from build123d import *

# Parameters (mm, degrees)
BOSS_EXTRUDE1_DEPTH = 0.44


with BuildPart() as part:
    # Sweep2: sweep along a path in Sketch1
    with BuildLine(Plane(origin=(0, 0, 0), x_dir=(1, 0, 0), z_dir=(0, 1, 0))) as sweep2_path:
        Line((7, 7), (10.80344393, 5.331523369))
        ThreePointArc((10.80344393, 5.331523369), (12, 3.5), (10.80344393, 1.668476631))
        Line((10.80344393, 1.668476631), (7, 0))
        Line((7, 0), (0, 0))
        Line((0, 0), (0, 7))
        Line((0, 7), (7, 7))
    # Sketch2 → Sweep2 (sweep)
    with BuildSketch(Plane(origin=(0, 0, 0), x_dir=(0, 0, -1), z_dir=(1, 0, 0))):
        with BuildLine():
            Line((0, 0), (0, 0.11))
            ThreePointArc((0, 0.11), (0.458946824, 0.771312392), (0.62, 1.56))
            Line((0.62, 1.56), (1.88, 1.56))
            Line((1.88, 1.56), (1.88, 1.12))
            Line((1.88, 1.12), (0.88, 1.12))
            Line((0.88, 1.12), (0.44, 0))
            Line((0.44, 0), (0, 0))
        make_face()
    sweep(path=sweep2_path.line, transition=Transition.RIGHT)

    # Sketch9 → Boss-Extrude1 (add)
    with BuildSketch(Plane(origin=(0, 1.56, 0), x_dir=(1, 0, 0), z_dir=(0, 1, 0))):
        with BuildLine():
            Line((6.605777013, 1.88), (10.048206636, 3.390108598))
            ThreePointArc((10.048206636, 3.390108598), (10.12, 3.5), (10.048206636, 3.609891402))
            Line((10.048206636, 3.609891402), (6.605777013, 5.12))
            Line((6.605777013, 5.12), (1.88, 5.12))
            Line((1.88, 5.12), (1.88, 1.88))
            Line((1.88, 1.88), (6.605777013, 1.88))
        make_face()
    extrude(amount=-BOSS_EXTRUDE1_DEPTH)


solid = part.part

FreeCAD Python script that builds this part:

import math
import FreeCAD as App
import Part
import Sketcher
from FreeCAD import Vector
Q = App.Units.Quantity

doc = App.newDocument("Part")
params = doc.addObject("Spreadsheet::Sheet", "Params")
for row, (alias, value) in enumerate([
    ("sketch1_radius", "2 mm"),
    ("sketch1_height", "1 mm"),
    ("sketch1_width", "0.11 mm"),
    ("sketch1_width2", "0.44 mm"),
    ("sketch1_height2", "1.26 mm"),
    ("sketch2_radius", "2 mm"),
    ("sketch2_width", "7 mm"),
    ("sketch3_radius", "0.12 mm"),
    ("sketch3_height", "3.24 mm"),
    ("pad1_length", "0.44 mm"),
], start=1):
    params.set(f"A{row}", alias)
    params.set(f"B{row}", "=" + value)
    params.setAlias(f"B{row}", alias)

body = doc.addObject("PartDesign::Body", "Body")

sketch1 = body.newObject("Sketcher::SketchObject", "Sketch")
sketch1.AttachmentSupport = (doc.getObject("YZ_Plane"), [""])
sketch1.MapMode = "FlatFace"
sketch1.addGeometry([
    Part.LineSegment(Vector(0.11, 0, 0), Vector(0, 0, 0)),
    Part.LineSegment(Vector(0, 0, 0), Vector(0, -0.44, 0)),
    Part.LineSegment(Vector(0, -0.44, 0), Vector(1.12, -0.88, 0)),
    Part.LineSegment(Vector(1.12, -0.88, 0), Vector(1.12, -1.88, 0)),
    Part.LineSegment(Vector(1.12, -1.88, 0), Vector(1.56, -1.88, 0)),
    Part.LineSegment(Vector(1.56, -1.88, 0), Vector(1.56, -0.62, 0)),
    Part.ArcOfCircle(Part.Circle(Vector(1.56, 1.38, 0), Vector(0, 0, 1), 2), math.radians(-136), math.radians(-90)),
], False)
sketch1.addConstraint([
    Sketcher.Constraint("Coincident", 0, 2, 1, 1),
    Sketcher.Constraint("Coincident", 1, 2, 2, 1),
    Sketcher.Constraint("Coincident", 2, 2, 3, 1),
    Sketcher.Constraint("Coincident", 3, 2, 4, 1),
    Sketcher.Constraint("Coincident", 4, 2, 5, 1),
    Sketcher.Constraint("Coincident", 5, 2, 6, 2),
    Sketcher.Constraint("Coincident", 6, 1, 0, 1),
    Sketcher.Constraint("Horizontal", 0),
    Sketcher.Constraint("Vertical", 1),
    Sketcher.Constraint("Vertical", 3),
    Sketcher.Constraint("Horizontal", 4),
    Sketcher.Constraint("Vertical", 5),
    Sketcher.Constraint("Coincident", 0, 2, -1, 1),
    Sketcher.Constraint("Equal", 4, 1),
    Sketcher.Constraint("Radius", 6, Q("2 mm")),
    Sketcher.Constraint("DistanceY", 3, 2, 3, 1, Q("1 mm")),
    Sketcher.Constraint("DistanceX", 0, 2, 0, 1, Q("0.11 mm")),
    Sketcher.Constraint("DistanceX", 4, 1, 4, 2, Q("0.44 mm")),
    Sketcher.Constraint("DistanceY", 5, 1, 5, 2, Q("1.26 mm")),
    Sketcher.Constraint("DistanceY", -1, 1, 6, 3, Q("1.379999 mm")),
    Sketcher.Constraint("DistanceX", -1, 1, 2, 2, Q("1.12 mm")),
])
sketch1.setExpression("Constraints[14]", "Params.sketch1_radius")
sketch1.setExpression("Constraints[15]", "Params.sketch1_height")
sketch1.setExpression("Constraints[16]", "Params.sketch1_width")
sketch1.setExpression("Constraints[17]", "Params.sketch1_width2")
sketch1.setExpression("Constraints[18]", "Params.sketch1_height2")

sketch2 = body.newObject("Sketcher::SketchObject", "Sketch001")
sketch2.AttachmentSupport = (doc.getObject("XZ_Plane"), [""])
sketch2.MapMode = "FlatFace"
sketch2.addGeometry([
    Part.LineSegment(Vector(7, -7, 0), Vector(10.8, -5.3, 0)),
    Part.ArcOfCircle(Part.Circle(Vector(10, -3.5, 0), Vector(0, 0, 1), 2), math.radians(-66), math.radians(66)),
    Part.LineSegment(Vector(10.8, -1.7, 0), Vector(7, 0, 0)),
    Part.LineSegment(Vector(7, 0, 0), Vector(0, 0, 0)),
    Part.LineSegment(Vector(0, 0, 0), Vector(0, -7, 0)),
    Part.LineSegment(Vector(0, -7, 0), Vector(7, -7, 0)),
], False)
sketch2.addConstraint([
    Sketcher.Constraint("Tangent", 0, 2, 1, 1),
    Sketcher.Constraint("Tangent", 1, 2, 2, 1),
    Sketcher.Constraint("Coincident", 2, 2, 3, 1),
    Sketcher.Constraint("Coincident", 3, 2, 4, 1),
    Sketcher.Constraint("Coincident", 4, 2, 5, 1),
    Sketcher.Constraint("Coincident", 5, 2, 0, 1),
    Sketcher.Constraint("Horizontal", 3),
    Sketcher.Constraint("Vertical", 4),
    Sketcher.Constraint("Horizontal", 5),
    Sketcher.Constraint("Coincident", 3, 2, -1, 1),
    Sketcher.Constraint("Vertical", 0, 2, 1, 2),
    Sketcher.Constraint("Vertical", 2, 2, 5, 2),
    Sketcher.Constraint("Equal", 5, 4),
    Sketcher.Constraint("Radius", 1, Q("2 mm")),
    Sketcher.Constraint("DistanceX", 3, 2, 3, 1, Q("7 mm")),
    Sketcher.Constraint("DistanceX", -1, 1, 1, 3, Q("10 mm")),
])
sketch2.setExpression("Constraints[13]", "Params.sketch2_radius")
sketch2.setExpression("Constraints[14]", "Params.sketch2_width")
doc.recompute()

additivepipe = body.newObject("PartDesign::AdditivePipe", "AdditivePipe")
additivepipe.Profile = sketch1
additivepipe.Spine = (sketch2, ["Edge1", "Edge2", "Edge3", "Edge4", "Edge5", "Edge6"])
additivepipe.Transition = "Right corner"

sketch3 = body.newObject("Sketcher::SketchObject", "Sketch002")
sketch3.AttachmentSupport = (doc.getObject("XZ_Plane"), [""])
sketch3.MapMode = "FlatFace"
sketch3.AttachmentOffset = App.Placement(Vector(0, 0, -1.56), App.Rotation())
sketch3.addGeometry([
    Part.LineSegment(Vector(6.61, -1.88, 0), Vector(10.05, -3.39, 0)),
    Part.ArcOfCircle(Part.Circle(Vector(10, -3.5, 0), Vector(0, 0, 1), 0.12), math.radians(-66), math.radians(66)),
    Part.LineSegment(Vector(10.05, -3.61, 0), Vector(6.61, -5.12, 0)),
    Part.LineSegment(Vector(6.61, -5.12, 0), Vector(1.88, -5.12, 0)),
    Part.LineSegment(Vector(1.88, -5.12, 0), Vector(1.88, -1.88, 0)),
    Part.LineSegment(Vector(1.88, -1.88, 0), Vector(6.61, -1.88, 0)),
], False)
sketch3.addConstraint([
    Sketcher.Constraint("Tangent", 0, 2, 1, 2),
    Sketcher.Constraint("Tangent", 1, 1, 2, 1),
    Sketcher.Constraint("Coincident", 2, 2, 3, 1),
    Sketcher.Constraint("Coincident", 3, 2, 4, 1),
    Sketcher.Constraint("Coincident", 4, 2, 5, 1),
    Sketcher.Constraint("Coincident", 5, 2, 0, 1),
    Sketcher.Constraint("Horizontal", 3),
    Sketcher.Constraint("Vertical", 4),
    Sketcher.Constraint("Horizontal", 5),
    Sketcher.Constraint("Vertical", 0, 2, 1, 1),
    Sketcher.Constraint("Vertical", 2, 2, 5, 2),
    Sketcher.Constraint("Radius", 1, Q("0.12 mm")),
    Sketcher.Constraint("DistanceX", -1, 1, 1, 3, Q("10 mm")),
    Sketcher.Constraint("DistanceY", 4, 1, 4, 2, Q("3.24 mm")),
    Sketcher.Constraint("DistanceY", 1, 3, -1, 1, Q("3.5 mm")),
    Sketcher.Constraint("DistanceX", -1, 1, 3, 2, Q("1.88 mm")),
    Sketcher.Constraint("Distance", 0, Q("3.759089 mm")),
])
sketch3.setExpression("Constraints[11]", "Params.sketch3_radius")
sketch3.setExpression("Constraints[13]", "Params.sketch3_height")
pad1 = body.newObject("PartDesign::Pad", "Pad")
pad1.Profile = sketch3
pad1.setExpression("Length", "Params.pad1_length")

doc.recompute()
